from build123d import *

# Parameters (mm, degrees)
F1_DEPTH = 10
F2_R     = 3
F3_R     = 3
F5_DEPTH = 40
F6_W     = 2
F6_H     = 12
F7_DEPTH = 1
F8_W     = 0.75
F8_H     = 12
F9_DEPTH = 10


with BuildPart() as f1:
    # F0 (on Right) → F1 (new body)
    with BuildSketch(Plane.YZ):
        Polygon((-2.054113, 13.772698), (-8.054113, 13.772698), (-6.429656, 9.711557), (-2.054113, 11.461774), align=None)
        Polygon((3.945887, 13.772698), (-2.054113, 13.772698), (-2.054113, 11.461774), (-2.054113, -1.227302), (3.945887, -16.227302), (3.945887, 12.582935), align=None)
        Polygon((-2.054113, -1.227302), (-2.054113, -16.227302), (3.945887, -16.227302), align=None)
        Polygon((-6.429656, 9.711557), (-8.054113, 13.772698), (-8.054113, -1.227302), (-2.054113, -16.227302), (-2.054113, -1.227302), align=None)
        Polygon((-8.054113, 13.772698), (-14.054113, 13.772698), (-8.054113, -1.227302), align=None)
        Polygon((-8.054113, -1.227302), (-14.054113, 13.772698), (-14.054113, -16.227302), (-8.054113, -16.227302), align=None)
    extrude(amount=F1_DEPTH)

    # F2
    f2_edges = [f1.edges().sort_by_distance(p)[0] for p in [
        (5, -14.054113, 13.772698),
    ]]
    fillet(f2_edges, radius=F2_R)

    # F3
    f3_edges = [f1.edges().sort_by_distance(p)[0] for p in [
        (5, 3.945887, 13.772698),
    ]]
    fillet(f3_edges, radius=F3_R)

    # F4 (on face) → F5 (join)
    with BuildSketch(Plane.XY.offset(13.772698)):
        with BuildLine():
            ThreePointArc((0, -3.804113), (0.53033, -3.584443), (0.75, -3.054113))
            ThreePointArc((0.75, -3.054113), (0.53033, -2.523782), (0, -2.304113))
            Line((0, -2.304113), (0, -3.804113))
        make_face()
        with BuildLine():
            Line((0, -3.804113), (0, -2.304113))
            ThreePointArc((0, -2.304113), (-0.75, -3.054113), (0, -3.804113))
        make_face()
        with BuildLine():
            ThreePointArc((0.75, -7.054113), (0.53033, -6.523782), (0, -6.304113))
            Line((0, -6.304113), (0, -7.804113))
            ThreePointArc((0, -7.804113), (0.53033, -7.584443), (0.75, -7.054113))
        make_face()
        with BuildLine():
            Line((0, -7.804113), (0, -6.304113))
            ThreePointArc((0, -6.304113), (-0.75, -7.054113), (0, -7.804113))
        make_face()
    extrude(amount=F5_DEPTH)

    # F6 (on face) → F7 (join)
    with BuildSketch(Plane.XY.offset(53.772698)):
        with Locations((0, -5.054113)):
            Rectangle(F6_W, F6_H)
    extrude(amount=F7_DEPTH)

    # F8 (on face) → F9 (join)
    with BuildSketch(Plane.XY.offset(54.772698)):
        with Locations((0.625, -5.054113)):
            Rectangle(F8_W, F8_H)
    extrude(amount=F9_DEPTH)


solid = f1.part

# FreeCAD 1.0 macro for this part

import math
import FreeCAD as App
import Part
import Sketcher

V = App.Vector
Q = App.Units.Quantity


def edges_at(feature, points):
    """Names of the edges that pass closest to the given points."""
    edges = feature.Shape.Edges
    near = lambda p: min(range(len(edges)), key=lambda i: edges[i].distToShape(Part.Vertex(*p))[0])
    return sorted({f"Edge{near(p) + 1}" for p in points})


def add_polygon(sketch, points):
    """Adds a closed chain of lines whose ends are joined by coincident constraints."""
    first, n = sketch.GeometryCount, len(points)
    for a, b in zip(points, points[1:] + points[:1]):
        sketch.addGeometry(Part.LineSegment(App.Vector(*a, 0), App.Vector(*b, 0)), False)
    for i in range(n):
        sketch.addConstraint(Sketcher.Constraint("Coincident", first + i, 2, first + (i + 1) % n, 1))

doc = App.newDocument("Part")
body = doc.addObject("PartDesign::Body", "Body")

# Sketch on YZ plane
sketch1 = body.newObject("Sketcher::SketchObject", "Sketch")
sketch1.AttachmentSupport = (doc.getObject("YZ_Plane"), [""])
sketch1.MapMode = "FlatFace"
add_polygon(sketch1, [(-2.1, -16.2), (3.9, -16.2), (3.9, 13.8), (-14.1, 13.8), (-14.1, -16.2), (-8.1, -16.2), (-8.1, -1.2)])  # lines 0-6
add_polygon(sketch1, [(-6.4, 9.7), (-2.1, 11.5), (-2.1, -1.2)])  # lines 7-9
sketch1.addConstraint(Sketcher.Constraint("Horizontal", 0))
sketch1.addConstraint(Sketcher.Constraint("Vertical", 1))
sketch1.addConstraint(Sketcher.Constraint("Horizontal", 2))
sketch1.addConstraint(Sketcher.Constraint("Vertical", 3))
sketch1.addConstraint(Sketcher.Constraint("Horizontal", 4))
sketch1.addConstraint(Sketcher.Constraint("Vertical", 5))
sketch1.addConstraint(Sketcher.Constraint("Vertical", 8))
sketch1.addConstraint(Sketcher.Constraint("Perpendicular", 6, 7))
sketch1.addConstraint(Sketcher.Constraint("Perpendicular", 7, 9))
sketch1.addConstraint(Sketcher.Constraint("Horizontal", 0, 2, 3, 2))
sketch1.addConstraint(Sketcher.Constraint("Horizontal", 5, 2, 8, 2))
sketch1.addConstraint(Sketcher.Constraint("Vertical", 6, 2, 7, 2))
sketch1.addConstraint(Sketcher.Constraint("Equal", 0, 4))
sketch1.addConstraint(Sketcher.Constraint("DistanceX", 0, 1, 0, 2, Q("6 mm")))
sketch1.addConstraint(Sketcher.Constraint("DistanceX", 2, 2, 2, 1, Q("18 mm")))
sketch1.addConstraint(Sketcher.Constraint("DistanceY", 1, 1, 1, 2, Q("30 mm")))
sketch1.addConstraint(Sketcher.Constraint("DistanceY", 5, 1, 5, 2, Q("15 mm")))
sketch1.addConstraint(Sketcher.Constraint("DistanceY", 5, 2, -1, 1, Q("1.227302 mm")))
sketch1.addConstraint(Sketcher.Constraint("Distance", 9, Q("11.781511 mm")))
sketch1.addConstraint(Sketcher.Constraint("DistanceX", -1, 1, 0, 2, Q("3.945887 mm")))
pad1 = body.newObject("PartDesign::Pad", "Pad")
pad1.Profile = sketch1
pad1.Length = 10
doc.recompute()

fillet = body.newObject("PartDesign::Fillet", "Fillet")
fillet.Base = (pad1, edges_at(pad1, [(5, -14.054, 13.773)]))
fillet.Radius = 3
doc.recompute()

fillet2 = body.newObject("PartDesign::Fillet", "Fillet001")
fillet2.Base = (fillet, edges_at(fillet, [(5, 3.946, 13.773)]))
fillet2.Radius = 3

# Sketch on XY plane
sketch2 = body.newObject("Sketcher::SketchObject", "Sketch001")
sketch2.AttachmentSupport = (doc.getObject("XY_Plane"), [""])
sketch2.MapMode = "FlatFace"
sketch2.AttachmentOffset = App.Placement(V(0, 0, 13.772698), App.Rotation())
sketch2.addGeometry(Part.ArcOfCircle(Part.Circle(V(0, -3.1, 0), V(0, 0, 1), 0.8), math.radians(-90), math.radians(0)), False)
sketch2.addGeometry(Part.ArcOfCircle(Part.Circle(V(0, -3.1, 0), V(0, 0, 1), 0.7), math.radians(0), math.radians(90)), False)
sketch2.addGeometry(Part.ArcOfCircle(Part.Circle(V(0, -3.1, 0), V(0, 0, 1), 0.8), math.radians(90), math.radians(270)), False)
sketch2.addGeometry(Part.ArcOfCircle(Part.Circle(V(0, -7.1, 0), V(0, 0, 1), 0.7), math.radians(0), math.radians(90)), False)
sketch2.addGeometry(Part.ArcOfCircle(Part.Circle(V(0, -7.1, 0), V(0, 0, 1), 0.8), math.radians(90), math.radians(270)), False)
sketch2.addGeometry(Part.ArcOfCircle(Part.Circle(V(0, -7.1, 0), V(0, 0, 1), 0.8), math.radians(-90), math.radians(0)), False)
sketch2.addConstraint(Sketcher.Constraint("Tangent", 0, 2, 1, 1))
sketch2.addConstraint(Sketcher.Constraint("Tangent", 1, 2, 2, 1))
sketch2.addConstraint(Sketcher.Constraint("Tangent", 2, 2, 0, 1))
sketch2.addConstraint(Sketcher.Constraint("Tangent", 3, 2, 4, 1))
sketch2.addConstraint(Sketcher.Constraint("Tangent", 4, 2, 5, 1))
sketch2.addConstraint(Sketcher.Constraint("Tangent", 5, 2, 3, 1))
sketch2.addConstraint(Sketcher.Constraint("Equal", 2, 3))
sketch2.addConstraint(Sketcher.Constraint("PointOnObject", 0, 3, -2))
sketch2.addConstraint(Sketcher.Constraint("PointOnObject", 3, 3, -2))
sketch2.addConstraint(Sketcher.Constraint("PointOnObject", 1, 2, -2))
sketch2.addConstraint(Sketcher.Constraint("PointOnObject", 2, 2, -2))
sketch2.addConstraint(Sketcher.Constraint("PointOnObject", 3, 2, -2))
sketch2.addConstraint(Sketcher.Constraint("PointOnObject", 4, 2, -2))
sketch2.addConstraint(Sketcher.Constraint("Horizontal", 2, 3, 0, 2))
sketch2.addConstraint(Sketcher.Constraint("Horizontal", 4, 3, 5, 2))
sketch2.addConstraint(Sketcher.Constraint("Radius", 0, Q("0.75 mm")))
sketch2.addConstraint(Sketcher.Constraint("DistanceY", 3, 3, 2, 3, Q("3.999999 mm")))
sketch2.addConstraint(Sketcher.Constraint("DistanceY", 1, 3, -1, 1, Q("3.054112 mm")))
pad2 = body.newObject("PartDesign::Pad", "Pad001")
pad2.Profile = sketch2
pad2.Length = 40

# Sketch on XY plane
sketch3 = body.newObject("Sketcher::SketchObject", "Sketch002")
sketch3.AttachmentSupport = (doc.getObject("XY_Plane"), [""])
sketch3.MapMode = "FlatFace"
sketch3.AttachmentOffset = App.Placement(V(0, 0, 53.772698), App.Rotation())
add_polygon(sketch3, [(-1, 0.9), (-1, -11.1), (1, -11.1), (1, 0.9)])  # lines 0-3
sketch3.addConstraint(Sketcher.Constraint("Vertical", 0))
sketch3.addConstraint(Sketcher.Constraint("Horizontal", 1))
sketch3.addConstraint(Sketcher.Constraint("Vertical", 2))
sketch3.addConstraint(Sketcher.Constraint("Horizontal", 3))
sketch3.addConstraint(Sketcher.Constraint("DistanceX", 1, 1, 1, 2, Q("2 mm")))
sketch3.addConstraint(Sketcher.Constraint("DistanceY", 0, 2, 0, 1, Q("12 mm")))
sketch3.addConstraint(Sketcher.Constraint("DistanceX", 0, 2, -1, 1, Q("1 mm")))
sketch3.addConstraint(Sketcher.Constraint("DistanceY", 0, 2, -1, 1, Q("11.054113 mm")))
pad3 = body.newObject("PartDesign::Pad", "Pad002")
pad3.Profile = sketch3
pad3.Length = 1

# Sketch on XY plane
sketch4 = body.newObject("Sketcher::SketchObject", "Sketch003")
sketch4.AttachmentSupport = (doc.getObject("XY_Plane"), [""])
sketch4.MapMode = "FlatFace"
sketch4.AttachmentOffset = App.Placement(V(0, 0, 54.772698), App.Rotation())
add_polygon(sketch4, [(0.2, 0.9), (0.2, -11.1), (1, -11.1), (1, 0.9)])  # lines 0-3
sketch4.addConstraint(Sketcher.Constraint("Vertical", 0))
sketch4.addConstraint(Sketcher.Constraint("Horizontal", 1))
sketch4.addConstraint(Sketcher.Constraint("Vertical", 2))
sketch4.addConstraint(Sketcher.Constraint("Horizontal", 3))
sketch4.addConstraint(Sketcher.Constraint("DistanceY", 0, 2, 0, 1, Q("12 mm")))
sketch4.addConstraint(Sketcher.Constraint("DistanceX", -1, 1, 1, 2, Q("1 mm")))
sketch4.addConstraint(Sketcher.Constraint("DistanceX", 1, 1, 1, 2, Q("0.75 mm")))
sketch4.addConstraint(Sketcher.Constraint("DistanceY", 0, 2, -1, 1, Q("11.054113 mm")))
pad4 = body.newObject("PartDesign::Pad", "Pad003")
pad4.Profile = sketch4
pad4.Length = 10

doc.recompute()
